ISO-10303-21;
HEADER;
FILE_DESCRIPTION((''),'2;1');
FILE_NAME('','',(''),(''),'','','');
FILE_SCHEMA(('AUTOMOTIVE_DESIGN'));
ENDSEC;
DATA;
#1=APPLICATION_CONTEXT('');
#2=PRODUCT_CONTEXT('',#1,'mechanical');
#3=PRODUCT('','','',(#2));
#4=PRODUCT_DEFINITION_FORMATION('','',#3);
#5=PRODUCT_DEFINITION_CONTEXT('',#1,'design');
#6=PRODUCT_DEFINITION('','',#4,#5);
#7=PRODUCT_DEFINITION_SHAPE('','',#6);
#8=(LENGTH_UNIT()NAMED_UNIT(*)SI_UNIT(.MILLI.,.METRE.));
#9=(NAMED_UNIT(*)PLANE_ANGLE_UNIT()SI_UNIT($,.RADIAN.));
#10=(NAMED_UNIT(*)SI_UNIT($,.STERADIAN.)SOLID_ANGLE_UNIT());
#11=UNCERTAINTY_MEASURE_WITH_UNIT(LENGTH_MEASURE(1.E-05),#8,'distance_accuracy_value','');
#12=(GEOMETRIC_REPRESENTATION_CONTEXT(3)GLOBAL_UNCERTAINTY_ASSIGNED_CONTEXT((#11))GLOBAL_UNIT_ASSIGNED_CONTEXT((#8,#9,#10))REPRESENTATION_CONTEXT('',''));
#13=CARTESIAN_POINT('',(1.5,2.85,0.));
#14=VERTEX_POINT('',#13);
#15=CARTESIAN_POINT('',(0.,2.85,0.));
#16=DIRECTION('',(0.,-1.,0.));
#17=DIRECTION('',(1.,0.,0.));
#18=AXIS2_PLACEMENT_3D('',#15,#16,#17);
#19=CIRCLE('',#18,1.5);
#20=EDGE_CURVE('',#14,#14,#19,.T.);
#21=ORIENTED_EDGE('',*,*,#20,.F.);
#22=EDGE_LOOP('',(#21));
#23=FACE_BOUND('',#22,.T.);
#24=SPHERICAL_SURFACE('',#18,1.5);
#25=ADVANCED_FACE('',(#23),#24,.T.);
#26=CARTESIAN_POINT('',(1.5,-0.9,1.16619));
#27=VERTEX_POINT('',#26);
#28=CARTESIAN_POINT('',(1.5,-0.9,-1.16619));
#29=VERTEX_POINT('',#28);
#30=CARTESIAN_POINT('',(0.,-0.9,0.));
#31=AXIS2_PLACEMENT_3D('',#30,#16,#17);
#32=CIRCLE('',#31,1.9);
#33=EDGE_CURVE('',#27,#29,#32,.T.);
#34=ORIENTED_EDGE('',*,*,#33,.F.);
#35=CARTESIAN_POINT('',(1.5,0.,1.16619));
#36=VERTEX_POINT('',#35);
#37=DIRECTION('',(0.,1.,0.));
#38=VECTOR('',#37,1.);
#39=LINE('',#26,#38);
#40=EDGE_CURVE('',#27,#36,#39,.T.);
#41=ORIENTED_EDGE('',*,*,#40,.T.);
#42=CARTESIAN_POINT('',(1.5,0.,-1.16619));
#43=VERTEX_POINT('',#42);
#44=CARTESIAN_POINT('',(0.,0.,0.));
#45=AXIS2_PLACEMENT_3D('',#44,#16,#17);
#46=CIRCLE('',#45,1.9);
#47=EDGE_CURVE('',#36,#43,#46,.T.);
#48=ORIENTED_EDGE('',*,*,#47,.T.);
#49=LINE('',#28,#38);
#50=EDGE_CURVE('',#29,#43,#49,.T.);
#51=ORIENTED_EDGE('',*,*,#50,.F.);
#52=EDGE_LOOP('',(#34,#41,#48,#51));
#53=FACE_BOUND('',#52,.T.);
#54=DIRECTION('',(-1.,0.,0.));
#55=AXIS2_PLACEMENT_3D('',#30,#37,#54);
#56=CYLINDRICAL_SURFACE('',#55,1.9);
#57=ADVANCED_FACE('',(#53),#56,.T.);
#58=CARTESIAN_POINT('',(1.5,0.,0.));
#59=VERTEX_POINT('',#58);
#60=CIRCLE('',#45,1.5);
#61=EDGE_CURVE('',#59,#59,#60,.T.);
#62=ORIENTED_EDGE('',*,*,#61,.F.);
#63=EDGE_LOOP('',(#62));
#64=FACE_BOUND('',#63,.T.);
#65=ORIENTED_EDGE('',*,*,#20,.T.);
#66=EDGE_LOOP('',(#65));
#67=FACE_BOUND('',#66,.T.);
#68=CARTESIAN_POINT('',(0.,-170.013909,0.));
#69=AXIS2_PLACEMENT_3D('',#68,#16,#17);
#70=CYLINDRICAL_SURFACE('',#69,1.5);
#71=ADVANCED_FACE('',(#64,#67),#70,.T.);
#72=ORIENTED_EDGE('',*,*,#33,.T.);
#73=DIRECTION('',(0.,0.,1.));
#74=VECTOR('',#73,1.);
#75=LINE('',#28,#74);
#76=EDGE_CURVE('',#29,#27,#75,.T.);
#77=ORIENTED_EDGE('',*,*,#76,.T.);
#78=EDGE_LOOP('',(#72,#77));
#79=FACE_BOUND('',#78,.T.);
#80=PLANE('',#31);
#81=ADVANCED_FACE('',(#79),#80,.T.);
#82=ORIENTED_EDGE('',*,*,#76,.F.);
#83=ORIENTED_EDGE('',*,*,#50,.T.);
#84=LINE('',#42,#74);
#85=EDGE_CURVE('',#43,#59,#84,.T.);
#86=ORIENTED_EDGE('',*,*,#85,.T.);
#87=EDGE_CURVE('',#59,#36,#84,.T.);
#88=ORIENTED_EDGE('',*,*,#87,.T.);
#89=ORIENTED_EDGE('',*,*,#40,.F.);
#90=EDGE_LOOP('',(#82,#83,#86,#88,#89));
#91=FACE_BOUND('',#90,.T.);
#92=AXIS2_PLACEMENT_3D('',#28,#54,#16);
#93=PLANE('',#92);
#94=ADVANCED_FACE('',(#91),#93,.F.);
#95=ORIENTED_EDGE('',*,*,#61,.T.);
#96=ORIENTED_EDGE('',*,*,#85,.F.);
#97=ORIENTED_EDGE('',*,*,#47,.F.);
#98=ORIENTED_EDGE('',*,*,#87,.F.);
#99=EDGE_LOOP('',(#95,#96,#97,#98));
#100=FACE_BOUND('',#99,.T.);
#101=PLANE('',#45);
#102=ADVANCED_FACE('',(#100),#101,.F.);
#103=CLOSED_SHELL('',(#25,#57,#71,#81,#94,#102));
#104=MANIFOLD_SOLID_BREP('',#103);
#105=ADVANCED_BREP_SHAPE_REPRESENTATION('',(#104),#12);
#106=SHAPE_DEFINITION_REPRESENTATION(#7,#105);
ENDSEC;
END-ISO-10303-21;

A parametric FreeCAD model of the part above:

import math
import FreeCAD as App
import Part
import Sketcher

doc = App.newDocument("Part")
params = doc.addObject("Spreadsheet::Sheet", "Params")
for row, (alias, value) in enumerate([
    ("sketch1_radius", "1.5 mm"),
    ("sketch1_height", "2.85 mm"),
    ("revolution_angle", "360 deg"),
    ("sketch2_radius", "1.9 mm"),
    ("pad1_length", "0.9 mm"),
], start=1):
    params.set(f"A{row}", alias)
    params.set(f"B{row}", "=" + value)
    params.setAlias(f"B{row}", alias)

body = doc.addObject("PartDesign::Body", "Body")

# Sketch on XY plane
sketch1 = body.newObject("Sketcher::SketchObject", "Sketch")
sketch1.AttachmentSupport = (doc.getObject("XY_Plane"), [""])
sketch1.MapMode = "FlatFace"
sketch1.addGeometry([
    Part.LineSegment(App.Vector(1.5, 0, 0), App.Vector(1.5, 2.85, 0)),
    Part.ArcOfCircle(Part.Circle(App.Vector(0, 2.85, 0), App.Vector(0, 0, 1), 1.5), math.radians(0), math.radians(90)),
    Part.LineSegment(App.Vector(0, 4.35, 0), App.Vector(0, 0, 0)),
    Part.LineSegment(App.Vector(0, 0, 0), App.Vector(1.5, 0, 0)),
], False)
sketch1.addConstraint([
    Sketcher.Constraint("Tangent", 0, 2, 1, 1),
    Sketcher.Constraint("Coincident", 1, 2, 2, 1),
    Sketcher.Constraint("Coincident", 2, 2, 3, 1),
    Sketcher.Constraint("Coincident", 3, 2, 0, 1),
    Sketcher.Constraint("Vertical", 0),
    Sketcher.Constraint("Vertical", 2),
    Sketcher.Constraint("Horizontal", 3),
    Sketcher.Constraint("Coincident", 2, 2, -1, 1),
    Sketcher.Constraint("PointOnObject", 1, 3, -2),
    Sketcher.Constraint("Radius", 1, 1.5),
    Sketcher.Constraint("DistanceY", 0, 1, 0, 2, 2.85),
])
sketch1.setExpression("Constraints[9]", "Params.sketch1_radius")
sketch1.setExpression("Constraints[10]", "Params.sketch1_height")
revolution = body.newObject("PartDesign::Revolution", "Revolution")
revolution.Profile = sketch1
revolution.ReferenceAxis = (sketch1, ["V_Axis"])
revolution.setExpression("Angle", "Params.revolution_angle")

# Sketch on XZ plane
sketch2 = body.newObject("Sketcher::SketchObject", "Sketch001")
sketch2.AttachmentSupport = (doc.getObject("XZ_Plane"), [""])
sketch2.MapMode = "FlatFace"
sketch2.addGeometry([
    Part.LineSegment(App.Vector(1.5, -1.16619, 0), App.Vector(1.5, 1.16619, 0)),
    Part.ArcOfCircle(Part.Circle(App.Vector(0, 0, 0), App.Vector(0, 0, 1), 1.9), math.radians(37.863646), math.radians(322.136354)),
], False)
sketch2.addConstraint([
    Sketcher.Constraint("Coincident", 0, 1, 1, 2),
    Sketcher.Constraint("Coincident", 1, 1, 0, 2),
    Sketcher.Constraint("Vertical", 0),
    Sketcher.Constraint("Coincident", 1, 3, -1, 1),
    Sketcher.Constraint("Radius", 1, 1.9),
    Sketcher.Constraint("DistanceX", -1, 1, 0, 1, 1.5),
])
sketch2.setExpression("Constraints[4]", "Params.sketch2_radius")
pad1 = body.newObject("PartDesign::Pad", "Pad")
pad1.Profile = sketch2
pad1.setExpression("Length", "Params.pad1_length")

doc.recompute()
